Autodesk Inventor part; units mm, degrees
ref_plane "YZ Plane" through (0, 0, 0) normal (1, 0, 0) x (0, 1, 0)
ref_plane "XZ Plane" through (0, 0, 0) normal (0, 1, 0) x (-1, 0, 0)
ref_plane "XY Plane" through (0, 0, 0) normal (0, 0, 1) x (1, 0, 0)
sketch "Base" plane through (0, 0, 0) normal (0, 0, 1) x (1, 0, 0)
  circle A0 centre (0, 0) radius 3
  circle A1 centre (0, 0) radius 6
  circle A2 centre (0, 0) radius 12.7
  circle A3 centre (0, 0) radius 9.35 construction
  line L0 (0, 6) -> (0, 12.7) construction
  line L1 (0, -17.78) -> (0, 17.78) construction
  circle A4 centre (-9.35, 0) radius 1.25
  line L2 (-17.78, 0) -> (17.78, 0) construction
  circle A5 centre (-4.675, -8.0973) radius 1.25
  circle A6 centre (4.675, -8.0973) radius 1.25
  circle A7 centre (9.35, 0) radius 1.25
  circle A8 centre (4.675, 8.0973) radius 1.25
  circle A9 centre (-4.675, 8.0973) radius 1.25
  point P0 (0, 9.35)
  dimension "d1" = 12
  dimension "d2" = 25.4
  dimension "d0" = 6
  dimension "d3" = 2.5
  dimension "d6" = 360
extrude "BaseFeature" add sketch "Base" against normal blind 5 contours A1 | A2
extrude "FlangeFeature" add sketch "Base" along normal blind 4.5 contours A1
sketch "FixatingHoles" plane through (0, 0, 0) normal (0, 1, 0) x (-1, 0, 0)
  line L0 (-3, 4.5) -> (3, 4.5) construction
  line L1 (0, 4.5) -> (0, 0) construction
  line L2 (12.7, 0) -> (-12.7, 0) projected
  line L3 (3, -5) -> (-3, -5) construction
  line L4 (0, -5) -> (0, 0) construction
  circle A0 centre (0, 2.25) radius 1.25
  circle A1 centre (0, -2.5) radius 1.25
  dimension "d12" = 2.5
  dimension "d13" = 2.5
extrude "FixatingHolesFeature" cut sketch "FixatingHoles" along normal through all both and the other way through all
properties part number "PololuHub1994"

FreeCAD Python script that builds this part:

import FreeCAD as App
import Part
import Sketcher
from FreeCAD import Vector
Q = App.Units.Quantity

doc = App.newDocument("Part")
body = doc.addObject("PartDesign::Body", "Body")

# Sketch on XY plane
sketch1 = body.newObject("Sketcher::SketchObject", "Sketch")
sketch1.AttachmentSupport = (doc.getObject("XY_Plane"), [""])
sketch1.MapMode = "FlatFace"
sketch1.addGeometry(Part.Circle(Vector(0, 0, 0), Vector(0, 0, 1), 12.7), False)
sketch1.addGeometry(Part.Circle(Vector(0, 0, 0), Vector(0, 0, 1), 3), False)
sketch1.addGeometry(Part.Circle(Vector(-4.675, -8.0973, 0), Vector(0, 0, 1), 1.25), False)
sketch1.addGeometry(Part.Circle(Vector(-9.35, 0, 0), Vector(0, 0, 1), 1.25), False)
sketch1.addGeometry(Part.Circle(Vector(4.675, 8.0973, 0), Vector(0, 0, 1), 1.25), False)
sketch1.addGeometry(Part.Circle(Vector(4.675, -8.0973, 0), Vector(0, 0, 1), 1.25), False)
sketch1.addGeometry(Part.Circle(Vector(9.35, 0, 0), Vector(0, 0, 1), 1.25), False)
sketch1.addGeometry(Part.Circle(Vector(-4.675, 8.0973, 0), Vector(0, 0, 1), 1.25), False)
sketch1.addConstraint(Sketcher.Constraint("Coincident", 0, 3, -1, 1))
sketch1.addConstraint(Sketcher.Constraint("Coincident", 1, 3, -1, 1))
sketch1.addConstraint(Sketcher.Constraint("Equal", 2, 3))
sketch1.addConstraint(Sketcher.Constraint("Equal", 3, 4))
sketch1.addConstraint(Sketcher.Constraint("Equal", 4, 5))
sketch1.addConstraint(Sketcher.Constraint("Equal", 5, 6))
sketch1.addConstraint(Sketcher.Constraint("Equal", 6, 7))
sketch1.addConstraint(Sketcher.Constraint("Symmetric", 2, 3, 4, 3, -1, 1))
sketch1.addConstraint(Sketcher.Constraint("Symmetric", 3, 3, 6, 3, -1, 1))
sketch1.addConstraint(Sketcher.Constraint("Symmetric", 5, 3, 7, 3, -1, 1))
sketch1.addConstraint(Sketcher.Constraint("Symmetric", 2, 3, 5, 3, -2))
sketch1.addConstraint(Sketcher.Constraint("PointOnObject", 3, 3, -1))
sketch1.addConstraint(Sketcher.Constraint("Diameter", 1, Q("6 mm")))
sketch1.addConstraint(Sketcher.Constraint("Diameter", 0, Q("25.4 mm")))
sketch1.addConstraint(Sketcher.Constraint("Diameter", 2, Q("2.5 mm")))
sketch1.addConstraint(Sketcher.Constraint("DistanceX", 3, 3, -1, 1, Q("9.35 mm")))
sketch1.addConstraint(Sketcher.Constraint("DistanceX", 2, 3, 4, 3, Q("9.35 mm")))
sketch1.addConstraint(Sketcher.Constraint("DistanceY", 2, 3, -1, 1, Q("8.0973 mm")))
pad1 = body.newObject("PartDesign::Pad", "Pad")
pad1.Profile = sketch1
pad1.Length = 5
pad1.Reversed = True

# Sketch on XY plane
sketch2 = body.newObject("Sketcher::SketchObject", "Sketch001")
sketch2.AttachmentSupport = (doc.getObject("XY_Plane"), [""])
sketch2.MapMode = "FlatFace"
sketch2.addGeometry(Part.Circle(Vector(0, 0, 0), Vector(0, 0, 1), 6), False)
sketch2.addGeometry(Part.Circle(Vector(0, 0, 0), Vector(0, 0, 1), 3), False)
sketch2.addConstraint(Sketcher.Constraint("Coincident", 0, 3, -1, 1))
sketch2.addConstraint(Sketcher.Constraint("Coincident", 1, 3, -1, 1))
sketch2.addConstraint(Sketcher.Constraint("Diameter", 0, Q("12 mm")))
sketch2.addConstraint(Sketcher.Constraint("Diameter", 1, Q("6 mm")))
pad2 = body.newObject("PartDesign::Pad", "Pad001")
pad2.Profile = sketch2
pad2.Length = 4.5

# Sketch on XZ plane
sketch3 = body.newObject("Sketcher::SketchObject", "Sketch002")
sketch3.AttachmentSupport = (doc.getObject("XZ_Plane"), [""])
sketch3.MapMode = "FlatFace"
sketch3.addGeometry(Part.Circle(Vector(0, 2.25, 0), Vector(0, 0, 1), 1.25), False)
sketch3.addGeometry(Part.Circle(Vector(0, -2.5, 0), Vector(0, 0, 1), 1.25), False)
sketch3.addConstraint(Sketcher.Constraint("Equal", 0, 1))
sketch3.addConstraint(Sketcher.Constraint("PointOnObject", 0, 3, -2))
sketch3.addConstraint(Sketcher.Constraint("PointOnObject", 1, 3, -2))
sketch3.addConstraint(Sketcher.Constraint("Diameter", 0, Q("2.5 mm")))
sketch3.addConstraint(Sketcher.Constraint("DistanceY", 1, 3, -1, 1, Q("2.5 mm")))
sketch3.addConstraint(Sketcher.Constraint("DistanceY", -1, 1, 0, 3, Q("2.25 mm")))
pocket1 = body.newObject("PartDesign::Pocket", "Pocket")
pocket1.Profile = sketch3
pocket1.Type = "ThroughAll"
pocket1.Midplane = True

doc.recompute()
